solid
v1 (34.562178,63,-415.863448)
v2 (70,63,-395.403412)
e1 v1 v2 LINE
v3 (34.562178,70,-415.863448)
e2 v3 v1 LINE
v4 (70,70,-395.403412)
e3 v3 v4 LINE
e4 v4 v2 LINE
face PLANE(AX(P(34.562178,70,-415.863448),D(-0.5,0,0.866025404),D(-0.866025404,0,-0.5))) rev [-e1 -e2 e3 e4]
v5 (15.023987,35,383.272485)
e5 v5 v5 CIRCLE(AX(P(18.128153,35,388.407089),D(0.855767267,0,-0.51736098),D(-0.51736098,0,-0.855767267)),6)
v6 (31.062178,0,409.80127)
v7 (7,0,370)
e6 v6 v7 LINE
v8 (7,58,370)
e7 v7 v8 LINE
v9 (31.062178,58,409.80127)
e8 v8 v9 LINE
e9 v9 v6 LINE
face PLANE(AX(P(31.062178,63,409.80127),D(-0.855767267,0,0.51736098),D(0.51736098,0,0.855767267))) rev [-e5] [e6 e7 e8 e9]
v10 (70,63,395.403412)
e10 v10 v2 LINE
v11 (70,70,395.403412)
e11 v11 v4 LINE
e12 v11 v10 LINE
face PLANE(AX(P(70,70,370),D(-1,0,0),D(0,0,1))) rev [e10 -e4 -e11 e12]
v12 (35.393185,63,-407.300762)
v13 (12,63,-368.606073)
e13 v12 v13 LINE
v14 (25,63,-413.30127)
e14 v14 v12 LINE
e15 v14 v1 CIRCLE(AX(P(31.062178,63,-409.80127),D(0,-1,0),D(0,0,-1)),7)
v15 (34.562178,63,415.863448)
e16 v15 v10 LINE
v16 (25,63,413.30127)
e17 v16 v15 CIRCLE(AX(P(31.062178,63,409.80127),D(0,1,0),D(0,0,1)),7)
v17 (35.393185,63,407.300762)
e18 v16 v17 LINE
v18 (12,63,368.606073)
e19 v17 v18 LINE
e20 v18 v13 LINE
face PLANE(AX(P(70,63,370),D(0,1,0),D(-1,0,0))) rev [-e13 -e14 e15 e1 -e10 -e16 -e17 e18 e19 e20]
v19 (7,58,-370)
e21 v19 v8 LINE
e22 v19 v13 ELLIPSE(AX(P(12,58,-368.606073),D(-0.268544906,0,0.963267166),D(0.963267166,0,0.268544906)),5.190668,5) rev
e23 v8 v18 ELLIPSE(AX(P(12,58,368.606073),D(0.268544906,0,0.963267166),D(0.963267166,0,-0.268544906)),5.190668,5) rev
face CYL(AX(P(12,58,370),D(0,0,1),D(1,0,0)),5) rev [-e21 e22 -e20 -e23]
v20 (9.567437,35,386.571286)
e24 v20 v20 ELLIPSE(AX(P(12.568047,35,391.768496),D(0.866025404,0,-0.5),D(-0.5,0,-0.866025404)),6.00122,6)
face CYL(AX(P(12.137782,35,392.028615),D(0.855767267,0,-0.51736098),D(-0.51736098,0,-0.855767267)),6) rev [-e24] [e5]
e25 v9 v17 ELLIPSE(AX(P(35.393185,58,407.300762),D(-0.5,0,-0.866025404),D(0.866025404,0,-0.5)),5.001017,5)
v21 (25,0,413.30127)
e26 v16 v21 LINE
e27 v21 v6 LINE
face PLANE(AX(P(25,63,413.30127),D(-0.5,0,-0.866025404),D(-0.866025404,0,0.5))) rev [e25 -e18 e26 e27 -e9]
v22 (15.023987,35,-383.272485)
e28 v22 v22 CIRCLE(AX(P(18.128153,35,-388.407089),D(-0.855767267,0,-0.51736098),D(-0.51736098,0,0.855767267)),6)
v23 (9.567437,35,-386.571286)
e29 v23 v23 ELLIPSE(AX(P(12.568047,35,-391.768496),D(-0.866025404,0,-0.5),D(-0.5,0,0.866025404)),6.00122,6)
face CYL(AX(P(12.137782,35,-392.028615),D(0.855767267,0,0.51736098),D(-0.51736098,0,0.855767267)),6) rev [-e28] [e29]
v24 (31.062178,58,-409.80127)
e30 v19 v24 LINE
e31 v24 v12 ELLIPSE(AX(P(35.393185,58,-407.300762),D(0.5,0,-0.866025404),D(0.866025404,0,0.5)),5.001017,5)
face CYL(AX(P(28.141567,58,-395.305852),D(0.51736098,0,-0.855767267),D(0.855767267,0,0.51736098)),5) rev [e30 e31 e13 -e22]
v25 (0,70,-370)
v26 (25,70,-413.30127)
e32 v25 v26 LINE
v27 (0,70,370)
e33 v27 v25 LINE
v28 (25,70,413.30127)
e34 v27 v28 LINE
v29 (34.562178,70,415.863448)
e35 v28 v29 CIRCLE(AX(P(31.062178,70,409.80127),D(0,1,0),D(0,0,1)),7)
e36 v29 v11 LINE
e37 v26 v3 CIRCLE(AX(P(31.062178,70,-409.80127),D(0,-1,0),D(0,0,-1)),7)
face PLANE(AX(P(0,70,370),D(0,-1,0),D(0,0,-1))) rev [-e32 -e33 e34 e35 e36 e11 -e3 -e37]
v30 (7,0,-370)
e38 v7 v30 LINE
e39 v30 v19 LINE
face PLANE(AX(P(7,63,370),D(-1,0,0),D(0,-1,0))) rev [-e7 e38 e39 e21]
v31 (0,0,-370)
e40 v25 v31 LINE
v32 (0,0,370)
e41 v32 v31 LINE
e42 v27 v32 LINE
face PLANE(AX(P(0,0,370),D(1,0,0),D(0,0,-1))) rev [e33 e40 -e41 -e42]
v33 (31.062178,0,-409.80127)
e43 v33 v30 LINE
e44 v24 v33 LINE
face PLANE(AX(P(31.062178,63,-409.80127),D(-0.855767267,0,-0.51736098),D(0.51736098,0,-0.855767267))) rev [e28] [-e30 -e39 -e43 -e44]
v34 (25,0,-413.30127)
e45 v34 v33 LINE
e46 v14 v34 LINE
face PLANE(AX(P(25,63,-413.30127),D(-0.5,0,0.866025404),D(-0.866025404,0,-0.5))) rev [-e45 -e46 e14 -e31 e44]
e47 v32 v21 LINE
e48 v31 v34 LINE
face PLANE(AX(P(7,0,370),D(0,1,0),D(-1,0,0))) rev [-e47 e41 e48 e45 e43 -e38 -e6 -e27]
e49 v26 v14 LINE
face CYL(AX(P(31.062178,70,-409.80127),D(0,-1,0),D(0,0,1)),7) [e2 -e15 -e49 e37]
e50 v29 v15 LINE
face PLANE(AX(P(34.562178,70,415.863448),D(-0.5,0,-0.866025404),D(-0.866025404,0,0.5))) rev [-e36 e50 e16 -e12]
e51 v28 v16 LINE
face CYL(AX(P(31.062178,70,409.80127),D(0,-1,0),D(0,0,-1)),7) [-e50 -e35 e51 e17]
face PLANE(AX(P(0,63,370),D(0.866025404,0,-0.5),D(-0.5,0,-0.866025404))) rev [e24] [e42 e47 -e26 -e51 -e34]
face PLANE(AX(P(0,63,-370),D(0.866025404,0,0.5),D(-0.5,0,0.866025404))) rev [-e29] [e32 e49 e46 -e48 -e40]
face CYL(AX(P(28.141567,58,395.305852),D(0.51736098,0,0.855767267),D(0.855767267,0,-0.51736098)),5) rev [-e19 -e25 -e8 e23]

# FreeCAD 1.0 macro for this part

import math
import FreeCAD as App
import Part
import Sketcher
Q = App.Units.Quantity


def edges_at(feature, points):
    """Names of the edges that pass closest to the given points."""
    edges = feature.Shape.Edges
    near = lambda p: min(range(len(edges)), key=lambda i: edges[i].distToShape(Part.Vertex(*p))[0])
    return sorted({f"Edge{near(p) + 1}" for p in points})


def add_polygon(sketch, points):
    """Adds a closed chain of lines whose ends are joined by coincident constraints."""
    first, n = sketch.GeometryCount, len(points)
    for a, b in zip(points, points[1:] + points[:1]):
        sketch.addGeometry(Part.LineSegment(App.Vector(*a, 0), App.Vector(*b, 0)), False)
    for i in range(n):
        sketch.addConstraint(Sketcher.Constraint("Coincident", first + i, 2, first + (i + 1) % n, 1))

doc = App.newDocument("Part")
body = doc.addObject("PartDesign::Body", "Body")

sketch1 = doc.addObject("Sketcher::SketchObject", "Sketch")
body.addObject(sketch1)
sketch1.AttachmentSupport = (doc.XY_Plane, [""])
sketch1.MapMode = "FlatFace"
add_polygon(sketch1, [(0, 70), (0, 0), (7, 0), (7, 63), (70, 63), (70, 70)])
sketch1.addConstraint([
    Sketcher.Constraint("Vertical", 0),
    Sketcher.Constraint("Horizontal", 1),
    Sketcher.Constraint("Vertical", 2),
    Sketcher.Constraint("Horizontal", 3),
    Sketcher.Constraint("Vertical", 4),
    Sketcher.Constraint("Horizontal", 5),
    Sketcher.Constraint("Coincident", 0, 2, -1, 1),
    Sketcher.Constraint("Equal", 5, 0),
    Sketcher.Constraint("Equal", 3, 2),
    Sketcher.Constraint("DistanceX", 1, 1, 1, 2, 7.0),
    Sketcher.Constraint("DistanceX", 3, 1, 3, 2, 63.0),
])
pad1 = doc.addObject("PartDesign::Pad", "Pad")
body.addObject(pad1)
pad1.Profile = sketch1
pad1.Length = 370

sketch2 = doc.addObject("Sketcher::SketchObject", "Sketch001")
body.addObject(sketch2)
sketch2.AttachmentSupport = (doc.XZ_Plane, [""])
sketch2.MapMode = "FlatFace"
add_polygon(sketch2, [(0, 370), (25, 413.30127), (31.062178, 409.80127), (7, 370)])
sketch2.addConstraint([
    Sketcher.Constraint("Horizontal", 3),
    Sketcher.Constraint("PointOnObject", 3, 2, -2),
    Sketcher.Constraint("Perpendicular", 0, 1),
    Sketcher.Constraint("DistanceX", 3, 2, 3, 1, 7.0),
    Sketcher.Constraint("Angle", 0, Q("60 deg")),
    Sketcher.Constraint("Distance", 0, 50.0),
    Sketcher.Constraint("Distance", 1, 7.0),
    Sketcher.Constraint("DistanceY", -1, 1, 2, 2, 370.0),
])
pad2 = doc.addObject("PartDesign::Pad", "Pad001")
body.addObject(pad2)
pad2.Profile = sketch2
pad2.Length = 63
pad2.Reversed = True

sketch3 = doc.addObject("Sketcher::SketchObject", "Sketch002")
body.addObject(sketch3)
sketch3.AttachmentSupport = (doc.XZ_Plane, [""])
sketch3.MapMode = "FlatFace"
sketch3.AttachmentOffset = App.Placement(App.Vector(0, 0, -63), App.Rotation())
sketch3.addGeometry([
    Part.LineSegment(App.Vector(0, 370, 0), App.Vector(25, 413.30127, 0)),
    Part.ArcOfCircle(Part.Circle(App.Vector(31.062178, 409.80127, 0), App.Vector(0, 0, 1), 7), math.radians(60), math.radians(150)),
    Part.LineSegment(App.Vector(34.562178, 415.863448, 0), App.Vector(70, 395.403412, 0)),
    Part.LineSegment(App.Vector(70, 395.403412, 0), App.Vector(70, 370, 0)),
    Part.LineSegment(App.Vector(70, 370, 0), App.Vector(0, 370, 0)),
], False)
sketch3.addConstraint([
    Sketcher.Constraint("Tangent", 0, 2, 1, 2),
    Sketcher.Constraint("Tangent", 1, 1, 2, 1),
    Sketcher.Constraint("Coincident", 2, 2, 3, 1),
    Sketcher.Constraint("Coincident", 3, 2, 4, 1),
    Sketcher.Constraint("Coincident", 4, 2, 0, 1),
    Sketcher.Constraint("Vertical", 3),
    Sketcher.Constraint("Horizontal", 4),
    Sketcher.Constraint("PointOnObject", 4, 2, -2),
    Sketcher.Constraint("Perpendicular", 0, 2),
    Sketcher.Constraint("Radius", 1, 7.0),
    Sketcher.Constraint("DistanceX", 4, 2, 4, 1, 70.0),
    Sketcher.Constraint("Angle", 0, Q("60 deg")),
    Sketcher.Constraint("Distance", 0, 50.0),
    Sketcher.Constraint("DistanceY", -1, 1, 3, 2, 370.0),
])
pad3 = doc.addObject("PartDesign::Pad", "Pad002")
body.addObject(pad3)
pad3.Profile = sketch3
pad3.Length = 7
pad3.Reversed = True

sketch4 = doc.addObject("Sketcher::SketchObject", "Sketch003")
body.addObject(sketch4)
sketch4.Placement = App.Placement(App.Vector(-158.687656, 0, 95.935898), App.Rotation(App.Vector(-0.51736098, 0, -0.855767267), App.Vector(0, 0.999999999, 0), App.Vector(0.855767267, 0, -0.51736098), "ZXY"))
sketch4.addGeometry(Part.Circle(App.Vector(-341.764872, 35, 0), App.Vector(0, 0, 1), 6), False)
sketch4.addConstraint([
    Sketcher.Constraint("Diameter", 0, 12.0),
    Sketcher.Constraint("DistanceY", -1, 1, 0, 3, 35.0),
    Sketcher.Constraint("DistanceX", 0, 3, -1, 1, 341.764872),
])
pocket1 = doc.addObject("PartDesign::Pocket", "Pocket")
body.addObject(pocket1)
pocket1.Profile = sketch4
pocket1.Length = 7
doc.recompute()

fillet = doc.addObject("PartDesign::Fillet", "Fillet")
body.addObject(fillet)
fillet.Base = (pocket1, edges_at(pocket1, [(7, 63, 185), (19.031, 63, 389.901)]))
fillet.Radius = 5
body2 = doc.addObject("PartDesign::Body", "Body001")
doc.recompute()

body2.BaseFeature = body
doc.recompute()

mirroring = doc.addObject("Part::Mirroring", "Mirroring")
mirroring.Source = body
mirroring.Base = App.Vector(0, 0, 0)
mirroring.Normal = App.Vector(0, 0, 1)
body3 = doc.addObject("PartDesign::Body", "Body002")
body3.BaseFeature = mirroring
boolean = doc.addObject("PartDesign::Boolean", "Boolean")
body2.addObject(boolean)
boolean.Type = "Fuse"
boolean.addObjects([body3])
doc.recompute()
mirroring.Visibility = False

doc.recompute()
